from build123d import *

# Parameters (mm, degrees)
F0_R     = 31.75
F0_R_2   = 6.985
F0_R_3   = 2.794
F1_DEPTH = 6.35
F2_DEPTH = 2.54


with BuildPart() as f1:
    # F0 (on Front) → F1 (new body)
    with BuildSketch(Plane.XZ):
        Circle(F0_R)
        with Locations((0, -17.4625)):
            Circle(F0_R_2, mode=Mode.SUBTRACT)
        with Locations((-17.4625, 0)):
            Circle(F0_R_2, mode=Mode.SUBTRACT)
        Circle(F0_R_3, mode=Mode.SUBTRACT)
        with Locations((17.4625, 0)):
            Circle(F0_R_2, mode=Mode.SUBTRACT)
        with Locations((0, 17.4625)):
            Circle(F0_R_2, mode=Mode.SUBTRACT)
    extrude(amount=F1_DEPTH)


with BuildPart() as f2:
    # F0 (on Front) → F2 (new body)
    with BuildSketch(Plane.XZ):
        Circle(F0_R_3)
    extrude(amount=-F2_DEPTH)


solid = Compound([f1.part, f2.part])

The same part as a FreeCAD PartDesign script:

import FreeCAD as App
import Part
import Sketcher

V = App.Vector
Q = App.Units.Quantity

doc = App.newDocument("Part")
body = doc.addObject("PartDesign::Body", "Body")

sketch1 = body.newObject("Sketcher::SketchObject", "Sketch")
sketch1.AttachmentSupport = (doc.getObject("XZ_Plane"), [""])
sketch1.MapMode = "FlatFace"
sketch1.addGeometry(Part.Circle(V(0, 0, 0), V(0, 0, 1), 31.75), False)
sketch1.addGeometry(Part.Circle(V(0, -17.4625, 0), V(0, 0, 1), 6.985), False)
sketch1.addGeometry(Part.Circle(V(-17.4625, 0, 0), V(0, 0, 1), 6.985), False)
sketch1.addGeometry(Part.Circle(V(0, 0, 0), V(0, 0, 1), 2.794), False)
sketch1.addGeometry(Part.Circle(V(17.4625, 0, 0), V(0, 0, 1), 6.985), False)
sketch1.addGeometry(Part.Circle(V(0, 17.4625, 0), V(0, 0, 1), 6.985), False)
sketch1.addConstraint(Sketcher.Constraint("Coincident", 0, 3, -1, 1))
sketch1.addConstraint(Sketcher.Constraint("Coincident", 3, 3, -1, 1))
sketch1.addConstraint(Sketcher.Constraint("Equal", 1, 2))
sketch1.addConstraint(Sketcher.Constraint("Equal", 2, 4))
sketch1.addConstraint(Sketcher.Constraint("Equal", 4, 5))
sketch1.addConstraint(Sketcher.Constraint("Symmetric", 2, 3, 4, 3, -1, 1))
sketch1.addConstraint(Sketcher.Constraint("Symmetric", 1, 3, 5, 3, -1, 1))
sketch1.addConstraint(Sketcher.Constraint("PointOnObject", 1, 3, -2))
sketch1.addConstraint(Sketcher.Constraint("PointOnObject", 2, 3, -1))
sketch1.addConstraint(Sketcher.Constraint("Diameter", 0, Q("2.5 in")))
sketch1.addConstraint(Sketcher.Constraint("Diameter", 1, Q("0.55 in")))
sketch1.addConstraint(Sketcher.Constraint("Diameter", 3, Q("0.22 in")))
sketch1.addConstraint(Sketcher.Constraint("DistanceY", 1, 3, -1, 1, Q("0.6875 in")))
sketch1.addConstraint(Sketcher.Constraint("DistanceX", 2, 3, -1, 1, Q("0.6875 in")))
pad1 = body.newObject("PartDesign::Pad", "Pad")
pad1.Profile = sketch1
pad1.Length = Q("0.25 in")
body2 = doc.addObject("PartDesign::Body", "Body001")

sketch2 = body2.newObject("Sketcher::SketchObject", "Sketch001")
sketch2.AttachmentSupport = (doc.getObject("XZ_Plane001"), [""])
sketch2.MapMode = "FlatFace"
sketch2.addGeometry(Part.Circle(V(0, 0, 0), V(0, 0, 1), 2.794), False)
sketch2.addConstraint(Sketcher.Constraint("Coincident", 0, 3, -1, 1))
sketch2.addConstraint(Sketcher.Constraint("Diameter", 0, Q("0.22 in")))
pad2 = body2.newObject("PartDesign::Pad", "Pad001")
pad2.Profile = sketch2
pad2.Length = Q("0.1 in")
pad2.Reversed = True

doc.recompute()
